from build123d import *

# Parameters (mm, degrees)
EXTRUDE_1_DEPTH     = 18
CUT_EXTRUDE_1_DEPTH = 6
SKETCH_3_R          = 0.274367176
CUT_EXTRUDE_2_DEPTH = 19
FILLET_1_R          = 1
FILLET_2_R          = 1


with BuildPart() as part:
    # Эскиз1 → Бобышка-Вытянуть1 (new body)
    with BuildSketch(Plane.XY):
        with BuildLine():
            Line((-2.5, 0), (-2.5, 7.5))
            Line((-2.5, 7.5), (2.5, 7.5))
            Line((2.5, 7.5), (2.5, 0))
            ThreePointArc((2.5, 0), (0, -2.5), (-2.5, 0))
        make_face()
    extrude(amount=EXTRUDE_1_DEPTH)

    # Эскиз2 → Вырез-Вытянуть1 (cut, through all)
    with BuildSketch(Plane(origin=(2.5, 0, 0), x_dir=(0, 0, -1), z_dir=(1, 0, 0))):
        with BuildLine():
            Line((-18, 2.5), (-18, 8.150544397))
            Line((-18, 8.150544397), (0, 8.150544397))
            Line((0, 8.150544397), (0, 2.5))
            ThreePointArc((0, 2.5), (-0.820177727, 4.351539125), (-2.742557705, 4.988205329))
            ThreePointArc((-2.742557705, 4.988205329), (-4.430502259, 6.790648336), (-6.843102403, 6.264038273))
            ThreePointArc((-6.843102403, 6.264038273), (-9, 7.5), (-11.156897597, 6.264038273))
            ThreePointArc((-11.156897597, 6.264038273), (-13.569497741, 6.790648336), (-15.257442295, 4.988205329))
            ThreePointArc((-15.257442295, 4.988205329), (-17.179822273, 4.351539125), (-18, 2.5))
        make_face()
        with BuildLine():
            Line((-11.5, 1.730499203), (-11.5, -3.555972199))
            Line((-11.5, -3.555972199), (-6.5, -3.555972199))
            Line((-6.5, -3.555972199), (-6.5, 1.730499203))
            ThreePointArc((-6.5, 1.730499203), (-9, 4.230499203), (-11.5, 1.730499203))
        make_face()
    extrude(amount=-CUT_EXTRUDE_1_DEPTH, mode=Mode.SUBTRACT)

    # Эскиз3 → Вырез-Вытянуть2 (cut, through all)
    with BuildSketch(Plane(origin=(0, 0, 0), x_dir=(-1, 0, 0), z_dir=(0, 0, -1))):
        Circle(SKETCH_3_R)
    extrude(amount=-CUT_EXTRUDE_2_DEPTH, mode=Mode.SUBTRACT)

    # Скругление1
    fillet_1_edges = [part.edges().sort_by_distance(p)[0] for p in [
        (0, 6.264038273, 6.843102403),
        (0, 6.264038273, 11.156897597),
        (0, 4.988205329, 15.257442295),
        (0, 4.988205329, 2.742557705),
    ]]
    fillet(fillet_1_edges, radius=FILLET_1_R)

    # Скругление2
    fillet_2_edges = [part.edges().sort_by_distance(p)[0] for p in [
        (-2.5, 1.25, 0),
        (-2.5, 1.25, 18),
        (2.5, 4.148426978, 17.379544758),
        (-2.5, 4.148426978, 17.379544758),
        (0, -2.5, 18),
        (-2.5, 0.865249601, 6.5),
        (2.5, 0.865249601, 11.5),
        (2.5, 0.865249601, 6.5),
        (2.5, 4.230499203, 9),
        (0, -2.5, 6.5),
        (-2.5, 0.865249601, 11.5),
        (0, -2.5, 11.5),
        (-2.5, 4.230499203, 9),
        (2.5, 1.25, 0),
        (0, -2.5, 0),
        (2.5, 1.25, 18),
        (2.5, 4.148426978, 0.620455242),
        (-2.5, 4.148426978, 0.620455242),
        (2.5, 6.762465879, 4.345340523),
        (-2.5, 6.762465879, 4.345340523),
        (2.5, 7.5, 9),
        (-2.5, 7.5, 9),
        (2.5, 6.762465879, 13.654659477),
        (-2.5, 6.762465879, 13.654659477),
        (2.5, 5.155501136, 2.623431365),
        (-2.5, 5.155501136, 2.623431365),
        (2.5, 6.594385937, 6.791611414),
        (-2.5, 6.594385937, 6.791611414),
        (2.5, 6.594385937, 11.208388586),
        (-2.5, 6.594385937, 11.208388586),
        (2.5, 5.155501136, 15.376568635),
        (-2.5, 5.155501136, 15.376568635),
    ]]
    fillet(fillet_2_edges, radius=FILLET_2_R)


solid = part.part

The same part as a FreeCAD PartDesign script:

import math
import FreeCAD as App
import Part
import Sketcher
Q = App.Units.Quantity


def edges_at(feature, points):
    """Names of the edges that pass closest to the given points."""
    edges = feature.Shape.Edges
    near = lambda p: min(range(len(edges)), key=lambda i: edges[i].distToShape(Part.Vertex(*p))[0])
    return sorted({f"Edge{near(p) + 1}" for p in points})

doc = App.newDocument("Part")
params = doc.addObject("Spreadsheet::Sheet", "Params")
for row, (alias, value) in enumerate([
    ("sketch1_radius", "2.5 mm"),
    ("sketch1_height", "7.5 mm"),
    ("pad1_length", "18 mm"),
    ("sketch2_radius", "2.5 mm"),
    ("sketch2_height", "18 mm"),
    ("fillet_radius", "1 mm"),
    ("fillet2_radius", "1 mm"),
], start=1):
    params.set(f"A{row}", alias)
    params.set(f"B{row}", "=" + value)
    params.setAlias(f"B{row}", alias)

body = doc.addObject("PartDesign::Body", "Body")

sketch1 = doc.addObject("Sketcher::SketchObject", "Sketch")
body.addObject(sketch1)
sketch1.AttachmentSupport = (doc.XY_Plane, [""])
sketch1.MapMode = "FlatFace"
sketch1.addGeometry(Part.LineSegment(App.Vector(-2.5, 7.5, 0), App.Vector(-2.5, 0, 0)), False)
sketch1.addGeometry(Part.ArcOfCircle(Part.Circle(App.Vector(0, 0, 0), App.Vector(0, 0, 1), 2.5), math.radians(180), math.radians(360)), False)
sketch1.addGeometry(Part.LineSegment(App.Vector(2.5, 0, 0), App.Vector(2.5, 7.5, 0)), False)
sketch1.addGeometry(Part.LineSegment(App.Vector(2.5, 7.5, 0), App.Vector(-2.5, 7.5, 0)), False)
sketch1.addConstraint(Sketcher.Constraint("Tangent", 0, 2, 1, 1))
sketch1.addConstraint(Sketcher.Constraint("Tangent", 1, 2, 2, 1))
sketch1.addConstraint(Sketcher.Constraint("Coincident", 2, 2, 3, 1))
sketch1.addConstraint(Sketcher.Constraint("Coincident", 3, 2, 0, 1))
sketch1.addConstraint(Sketcher.Constraint("Vertical", 0))
sketch1.addConstraint(Sketcher.Constraint("Vertical", 2))
sketch1.addConstraint(Sketcher.Constraint("Horizontal", 3))
sketch1.addConstraint(Sketcher.Constraint("Coincident", 1, 3, -1, 1))
sketch1.addConstraint(Sketcher.Constraint("Radius", 1, Q("2.5 mm")))
sketch1.addConstraint(Sketcher.Constraint("DistanceY", 0, 2, 0, 1, Q("7.5 mm")))
sketch1.setExpression("Constraints[8]", "Params.sketch1_radius")
sketch1.setExpression("Constraints[9]", "Params.sketch1_height")
pad1 = doc.addObject("PartDesign::Pad", "Pad")
body.addObject(pad1)
pad1.Profile = sketch1
pad1.setExpression("Length", "Params.pad1_length")

sketch2 = doc.addObject("Sketcher::SketchObject", "Sketch001")
body.addObject(sketch2)
sketch2.AttachmentSupport = (doc.YZ_Plane, [""])
sketch2.MapMode = "FlatFace"
sketch2.AttachmentOffset = App.Placement(App.Vector(0, 0, 2.5), App.Rotation())
sketch2.addGeometry(Part.LineSegment(App.Vector(8.2, 18, 0), App.Vector(2.5, 18, 0)), False)
sketch2.addGeometry(Part.ArcOfCircle(Part.Circle(App.Vector(2.5, 15.5, 0), App.Vector(0, 0, 1), 2.5), math.radians(-6), math.radians(90)), False)
sketch2.addGeometry(Part.ArcOfCircle(Part.Circle(App.Vector(4.4, 12.8, 0), App.Vector(0, 0, 1), 2.5), math.radians(-42), math.radians(76)), False)
sketch2.addGeometry(Part.ArcOfCircle(Part.Circle(App.Vector(5, 9, 0), App.Vector(0, 0, 1), 2.5), math.radians(-60), math.radians(60)), False)
sketch2.addGeometry(Part.ArcOfCircle(Part.Circle(App.Vector(4.4, 5.2, 0), App.Vector(0, 0, 1), 2.5), math.radians(-76), math.radians(42)), False)
sketch2.addGeometry(Part.ArcOfCircle(Part.Circle(App.Vector(2.5, 2.5, 0), App.Vector(0, 0, 1), 2.5), math.radians(-90), math.radians(6)), False)
sketch2.addGeometry(Part.LineSegment(App.Vector(2.5, 0, 0), App.Vector(8.2, 0, 0)), False)
sketch2.addGeometry(Part.LineSegment(App.Vector(8.2, 0, 0), App.Vector(8.2, 18, 0)), False)
sketch2.addGeometry(Part.LineSegment(App.Vector(1.7, 11.5, 0), App.Vector(-3.6, 11.5, 0)), False)
sketch2.addGeometry(Part.LineSegment(App.Vector(-3.6, 11.5, 0), App.Vector(-3.6, 6.5, 0)), False)
sketch2.addGeometry(Part.LineSegment(App.Vector(-3.6, 6.5, 0), App.Vector(1.7, 6.5, 0)), False)
sketch2.addGeometry(Part.ArcOfCircle(Part.Circle(App.Vector(1.7, 9, 0), App.Vector(0, 0, 1), 2.5), math.radians(-90), math.radians(90)), False)
sketch2.addConstraint(Sketcher.Constraint("Tangent", 0, 2, 1, 2))
sketch2.addConstraint(Sketcher.Constraint("Coincident", 1, 1, 2, 2))
sketch2.addConstraint(Sketcher.Constraint("Coincident", 2, 1, 3, 2))
sketch2.addConstraint(Sketcher.Constraint("Coincident", 3, 1, 4, 2))
sketch2.addConstraint(Sketcher.Constraint("Coincident", 4, 1, 5, 2))
sketch2.addConstraint(Sketcher.Constraint("Tangent", 5, 1, 6, 1))
sketch2.addConstraint(Sketcher.Constraint("Coincident", 6, 2, 7, 1))
sketch2.addConstraint(Sketcher.Constraint("Coincident", 7, 2, 0, 1))
sketch2.addConstraint(Sketcher.Constraint("Coincident", 8, 2, 9, 1))
sketch2.addConstraint(Sketcher.Constraint("Coincident", 9, 2, 10, 1))
sketch2.addConstraint(Sketcher.Constraint("Tangent", 10, 2, 11, 1))
sketch2.addConstraint(Sketcher.Constraint("Tangent", 11, 2, 8, 1))
sketch2.addConstraint(Sketcher.Constraint("Horizontal", 0))
sketch2.addConstraint(Sketcher.Constraint("Horizontal", 6))
sketch2.addConstraint(Sketcher.Constraint("Vertical", 7))
sketch2.addConstraint(Sketcher.Constraint("Horizontal", 8))
sketch2.addConstraint(Sketcher.Constraint("Vertical", 9))
sketch2.addConstraint(Sketcher.Constraint("Horizontal", 10))
sketch2.addConstraint(Sketcher.Constraint("Equal", 1, 2))
sketch2.addConstraint(Sketcher.Constraint("Equal", 2, 3))
sketch2.addConstraint(Sketcher.Constraint("Equal", 3, 4))
sketch2.addConstraint(Sketcher.Constraint("Equal", 4, 5))
sketch2.addConstraint(Sketcher.Constraint("Equal", 5, 11))
sketch2.addConstraint(Sketcher.Constraint("PointOnObject", 5, 1, -1))
sketch2.addConstraint(Sketcher.Constraint("Horizontal", 3, 3, 11, 3))
sketch2.addConstraint(Sketcher.Constraint("Vertical", 2, 3, 4, 3))
sketch2.addConstraint(Sketcher.Constraint("Vertical", 1, 3, 5, 3))
sketch2.addConstraint(Sketcher.Constraint("Vertical", 2, 1, 3, 1))
sketch2.addConstraint(Sketcher.Constraint("Vertical", 1, 1, 4, 1))
sketch2.addConstraint(Sketcher.Constraint("Radius", 1, Q("2.5 mm")))
sketch2.addConstraint(Sketcher.Constraint("DistanceY", 7, 1, 7, 2, Q("18 mm")))
sketch2.addConstraint(Sketcher.Constraint("DistanceX", -1, 1, 3, 3, Q("5 mm")))
sketch2.addConstraint(Sketcher.Constraint("DistanceX", -1, 1, 1, 3, Q("2.5 mm")))
sketch2.addConstraint(Sketcher.Constraint("DistanceX", 8, 2, 8, 1, Q("5.286471 mm")))
sketch2.addConstraint(Sketcher.Constraint("DistanceX", -1, 1, 11, 3, Q("1.730499 mm")))
sketch2.addConstraint(Sketcher.Constraint("DistanceX", 0, 2, 0, 1, Q("5.650544 mm")))
sketch2.addConstraint(Sketcher.Constraint("DistanceX", -1, 1, 2, 1, Q("6.264038 mm")))
sketch2.addConstraint(Sketcher.Constraint("DistanceY", 4, 3, 2, 3, Q("7.653548 mm")))
sketch2.setExpression("Constraints[29]", "Params.sketch2_radius")
sketch2.setExpression("Constraints[30]", "Params.sketch2_height")
pocket1 = doc.addObject("PartDesign::Pocket", "Pocket")
body.addObject(pocket1)
pocket1.Profile = sketch2
pocket1.Type = "ThroughAll"

sketch3 = doc.addObject("Sketcher::SketchObject", "Sketch002")
body.addObject(sketch3)
sketch3.AttachmentSupport = (doc.XY_Plane, [""])
sketch3.MapMode = "FlatFace"
sketch3.addGeometry(Part.Circle(App.Vector(0, 0, 0), App.Vector(0, 0, 1), 0.27), False)
sketch3.addConstraint(Sketcher.Constraint("Coincident", 0, 3, -1, 1))
sketch3.addConstraint(Sketcher.Constraint("Diameter", 0, Q("0.548734 mm")))
pocket2 = doc.addObject("PartDesign::Pocket", "Pocket001")
body.addObject(pocket2)
pocket2.Profile = sketch3
pocket2.Type = "ThroughAll"
pocket2.Reversed = True
doc.recompute()

fillet = doc.addObject("PartDesign::Fillet", "Fillet")
body.addObject(fillet)
fillet.Base = (pocket2, edges_at(pocket2, [
    (0, 6.264, 6.843),
    (0, 6.264, 11.157),
    (0, 4.988, 15.257),
    (0, 4.988, 2.743),
]))
fillet.setExpression("Radius", "Params.fillet_radius")
doc.recompute()

fillet2 = doc.addObject("PartDesign::Fillet", "Fillet001")
body.addObject(fillet2)
fillet2.Base = (fillet, edges_at(fillet, [
    (-2.5, 1.25, 0),
    (-2.5, 1.25, 18),
    (2.5, 4.148, 17.38),
    (-2.5, 4.148, 17.38),
    (0, -2.5, 18),
    (-2.5, 0.865, 6.5),
    (2.5, 0.865, 11.5),
    (2.5, 0.865, 6.5),
    (2.5, 4.23, 9),
    (0, -2.5, 6.5),
    (-2.5, 0.865, 11.5),
    (0, -2.5, 11.5),
    (-2.5, 4.23, 9),
    (2.5, 1.25, 0),
    (0, -2.5, 0),
    (2.5, 1.25, 18),
    (2.5, 4.148, 0.62),
    (-2.5, 4.148, 0.62),
    (2.5, 6.762, 4.345),
    (-2.5, 6.762, 4.345),
    (2.5, 7.5, 9),
    (-2.5, 7.5, 9),
    (2.5, 6.762, 13.655),
    (-2.5, 6.762, 13.655),
    (2.5, 5.156, 2.623),
    (-2.5, 5.156, 2.623),
    (2.5, 6.594, 6.792),
    (-2.5, 6.594, 6.792),
    (2.5, 6.594, 11.208),
    (-2.5, 6.594, 11.208),
    (2.5, 5.156, 15.377),
    (-2.5, 5.156, 15.377),
]))
fillet2.setExpression("Radius", "Params.fillet2_radius")

doc.recompute()
